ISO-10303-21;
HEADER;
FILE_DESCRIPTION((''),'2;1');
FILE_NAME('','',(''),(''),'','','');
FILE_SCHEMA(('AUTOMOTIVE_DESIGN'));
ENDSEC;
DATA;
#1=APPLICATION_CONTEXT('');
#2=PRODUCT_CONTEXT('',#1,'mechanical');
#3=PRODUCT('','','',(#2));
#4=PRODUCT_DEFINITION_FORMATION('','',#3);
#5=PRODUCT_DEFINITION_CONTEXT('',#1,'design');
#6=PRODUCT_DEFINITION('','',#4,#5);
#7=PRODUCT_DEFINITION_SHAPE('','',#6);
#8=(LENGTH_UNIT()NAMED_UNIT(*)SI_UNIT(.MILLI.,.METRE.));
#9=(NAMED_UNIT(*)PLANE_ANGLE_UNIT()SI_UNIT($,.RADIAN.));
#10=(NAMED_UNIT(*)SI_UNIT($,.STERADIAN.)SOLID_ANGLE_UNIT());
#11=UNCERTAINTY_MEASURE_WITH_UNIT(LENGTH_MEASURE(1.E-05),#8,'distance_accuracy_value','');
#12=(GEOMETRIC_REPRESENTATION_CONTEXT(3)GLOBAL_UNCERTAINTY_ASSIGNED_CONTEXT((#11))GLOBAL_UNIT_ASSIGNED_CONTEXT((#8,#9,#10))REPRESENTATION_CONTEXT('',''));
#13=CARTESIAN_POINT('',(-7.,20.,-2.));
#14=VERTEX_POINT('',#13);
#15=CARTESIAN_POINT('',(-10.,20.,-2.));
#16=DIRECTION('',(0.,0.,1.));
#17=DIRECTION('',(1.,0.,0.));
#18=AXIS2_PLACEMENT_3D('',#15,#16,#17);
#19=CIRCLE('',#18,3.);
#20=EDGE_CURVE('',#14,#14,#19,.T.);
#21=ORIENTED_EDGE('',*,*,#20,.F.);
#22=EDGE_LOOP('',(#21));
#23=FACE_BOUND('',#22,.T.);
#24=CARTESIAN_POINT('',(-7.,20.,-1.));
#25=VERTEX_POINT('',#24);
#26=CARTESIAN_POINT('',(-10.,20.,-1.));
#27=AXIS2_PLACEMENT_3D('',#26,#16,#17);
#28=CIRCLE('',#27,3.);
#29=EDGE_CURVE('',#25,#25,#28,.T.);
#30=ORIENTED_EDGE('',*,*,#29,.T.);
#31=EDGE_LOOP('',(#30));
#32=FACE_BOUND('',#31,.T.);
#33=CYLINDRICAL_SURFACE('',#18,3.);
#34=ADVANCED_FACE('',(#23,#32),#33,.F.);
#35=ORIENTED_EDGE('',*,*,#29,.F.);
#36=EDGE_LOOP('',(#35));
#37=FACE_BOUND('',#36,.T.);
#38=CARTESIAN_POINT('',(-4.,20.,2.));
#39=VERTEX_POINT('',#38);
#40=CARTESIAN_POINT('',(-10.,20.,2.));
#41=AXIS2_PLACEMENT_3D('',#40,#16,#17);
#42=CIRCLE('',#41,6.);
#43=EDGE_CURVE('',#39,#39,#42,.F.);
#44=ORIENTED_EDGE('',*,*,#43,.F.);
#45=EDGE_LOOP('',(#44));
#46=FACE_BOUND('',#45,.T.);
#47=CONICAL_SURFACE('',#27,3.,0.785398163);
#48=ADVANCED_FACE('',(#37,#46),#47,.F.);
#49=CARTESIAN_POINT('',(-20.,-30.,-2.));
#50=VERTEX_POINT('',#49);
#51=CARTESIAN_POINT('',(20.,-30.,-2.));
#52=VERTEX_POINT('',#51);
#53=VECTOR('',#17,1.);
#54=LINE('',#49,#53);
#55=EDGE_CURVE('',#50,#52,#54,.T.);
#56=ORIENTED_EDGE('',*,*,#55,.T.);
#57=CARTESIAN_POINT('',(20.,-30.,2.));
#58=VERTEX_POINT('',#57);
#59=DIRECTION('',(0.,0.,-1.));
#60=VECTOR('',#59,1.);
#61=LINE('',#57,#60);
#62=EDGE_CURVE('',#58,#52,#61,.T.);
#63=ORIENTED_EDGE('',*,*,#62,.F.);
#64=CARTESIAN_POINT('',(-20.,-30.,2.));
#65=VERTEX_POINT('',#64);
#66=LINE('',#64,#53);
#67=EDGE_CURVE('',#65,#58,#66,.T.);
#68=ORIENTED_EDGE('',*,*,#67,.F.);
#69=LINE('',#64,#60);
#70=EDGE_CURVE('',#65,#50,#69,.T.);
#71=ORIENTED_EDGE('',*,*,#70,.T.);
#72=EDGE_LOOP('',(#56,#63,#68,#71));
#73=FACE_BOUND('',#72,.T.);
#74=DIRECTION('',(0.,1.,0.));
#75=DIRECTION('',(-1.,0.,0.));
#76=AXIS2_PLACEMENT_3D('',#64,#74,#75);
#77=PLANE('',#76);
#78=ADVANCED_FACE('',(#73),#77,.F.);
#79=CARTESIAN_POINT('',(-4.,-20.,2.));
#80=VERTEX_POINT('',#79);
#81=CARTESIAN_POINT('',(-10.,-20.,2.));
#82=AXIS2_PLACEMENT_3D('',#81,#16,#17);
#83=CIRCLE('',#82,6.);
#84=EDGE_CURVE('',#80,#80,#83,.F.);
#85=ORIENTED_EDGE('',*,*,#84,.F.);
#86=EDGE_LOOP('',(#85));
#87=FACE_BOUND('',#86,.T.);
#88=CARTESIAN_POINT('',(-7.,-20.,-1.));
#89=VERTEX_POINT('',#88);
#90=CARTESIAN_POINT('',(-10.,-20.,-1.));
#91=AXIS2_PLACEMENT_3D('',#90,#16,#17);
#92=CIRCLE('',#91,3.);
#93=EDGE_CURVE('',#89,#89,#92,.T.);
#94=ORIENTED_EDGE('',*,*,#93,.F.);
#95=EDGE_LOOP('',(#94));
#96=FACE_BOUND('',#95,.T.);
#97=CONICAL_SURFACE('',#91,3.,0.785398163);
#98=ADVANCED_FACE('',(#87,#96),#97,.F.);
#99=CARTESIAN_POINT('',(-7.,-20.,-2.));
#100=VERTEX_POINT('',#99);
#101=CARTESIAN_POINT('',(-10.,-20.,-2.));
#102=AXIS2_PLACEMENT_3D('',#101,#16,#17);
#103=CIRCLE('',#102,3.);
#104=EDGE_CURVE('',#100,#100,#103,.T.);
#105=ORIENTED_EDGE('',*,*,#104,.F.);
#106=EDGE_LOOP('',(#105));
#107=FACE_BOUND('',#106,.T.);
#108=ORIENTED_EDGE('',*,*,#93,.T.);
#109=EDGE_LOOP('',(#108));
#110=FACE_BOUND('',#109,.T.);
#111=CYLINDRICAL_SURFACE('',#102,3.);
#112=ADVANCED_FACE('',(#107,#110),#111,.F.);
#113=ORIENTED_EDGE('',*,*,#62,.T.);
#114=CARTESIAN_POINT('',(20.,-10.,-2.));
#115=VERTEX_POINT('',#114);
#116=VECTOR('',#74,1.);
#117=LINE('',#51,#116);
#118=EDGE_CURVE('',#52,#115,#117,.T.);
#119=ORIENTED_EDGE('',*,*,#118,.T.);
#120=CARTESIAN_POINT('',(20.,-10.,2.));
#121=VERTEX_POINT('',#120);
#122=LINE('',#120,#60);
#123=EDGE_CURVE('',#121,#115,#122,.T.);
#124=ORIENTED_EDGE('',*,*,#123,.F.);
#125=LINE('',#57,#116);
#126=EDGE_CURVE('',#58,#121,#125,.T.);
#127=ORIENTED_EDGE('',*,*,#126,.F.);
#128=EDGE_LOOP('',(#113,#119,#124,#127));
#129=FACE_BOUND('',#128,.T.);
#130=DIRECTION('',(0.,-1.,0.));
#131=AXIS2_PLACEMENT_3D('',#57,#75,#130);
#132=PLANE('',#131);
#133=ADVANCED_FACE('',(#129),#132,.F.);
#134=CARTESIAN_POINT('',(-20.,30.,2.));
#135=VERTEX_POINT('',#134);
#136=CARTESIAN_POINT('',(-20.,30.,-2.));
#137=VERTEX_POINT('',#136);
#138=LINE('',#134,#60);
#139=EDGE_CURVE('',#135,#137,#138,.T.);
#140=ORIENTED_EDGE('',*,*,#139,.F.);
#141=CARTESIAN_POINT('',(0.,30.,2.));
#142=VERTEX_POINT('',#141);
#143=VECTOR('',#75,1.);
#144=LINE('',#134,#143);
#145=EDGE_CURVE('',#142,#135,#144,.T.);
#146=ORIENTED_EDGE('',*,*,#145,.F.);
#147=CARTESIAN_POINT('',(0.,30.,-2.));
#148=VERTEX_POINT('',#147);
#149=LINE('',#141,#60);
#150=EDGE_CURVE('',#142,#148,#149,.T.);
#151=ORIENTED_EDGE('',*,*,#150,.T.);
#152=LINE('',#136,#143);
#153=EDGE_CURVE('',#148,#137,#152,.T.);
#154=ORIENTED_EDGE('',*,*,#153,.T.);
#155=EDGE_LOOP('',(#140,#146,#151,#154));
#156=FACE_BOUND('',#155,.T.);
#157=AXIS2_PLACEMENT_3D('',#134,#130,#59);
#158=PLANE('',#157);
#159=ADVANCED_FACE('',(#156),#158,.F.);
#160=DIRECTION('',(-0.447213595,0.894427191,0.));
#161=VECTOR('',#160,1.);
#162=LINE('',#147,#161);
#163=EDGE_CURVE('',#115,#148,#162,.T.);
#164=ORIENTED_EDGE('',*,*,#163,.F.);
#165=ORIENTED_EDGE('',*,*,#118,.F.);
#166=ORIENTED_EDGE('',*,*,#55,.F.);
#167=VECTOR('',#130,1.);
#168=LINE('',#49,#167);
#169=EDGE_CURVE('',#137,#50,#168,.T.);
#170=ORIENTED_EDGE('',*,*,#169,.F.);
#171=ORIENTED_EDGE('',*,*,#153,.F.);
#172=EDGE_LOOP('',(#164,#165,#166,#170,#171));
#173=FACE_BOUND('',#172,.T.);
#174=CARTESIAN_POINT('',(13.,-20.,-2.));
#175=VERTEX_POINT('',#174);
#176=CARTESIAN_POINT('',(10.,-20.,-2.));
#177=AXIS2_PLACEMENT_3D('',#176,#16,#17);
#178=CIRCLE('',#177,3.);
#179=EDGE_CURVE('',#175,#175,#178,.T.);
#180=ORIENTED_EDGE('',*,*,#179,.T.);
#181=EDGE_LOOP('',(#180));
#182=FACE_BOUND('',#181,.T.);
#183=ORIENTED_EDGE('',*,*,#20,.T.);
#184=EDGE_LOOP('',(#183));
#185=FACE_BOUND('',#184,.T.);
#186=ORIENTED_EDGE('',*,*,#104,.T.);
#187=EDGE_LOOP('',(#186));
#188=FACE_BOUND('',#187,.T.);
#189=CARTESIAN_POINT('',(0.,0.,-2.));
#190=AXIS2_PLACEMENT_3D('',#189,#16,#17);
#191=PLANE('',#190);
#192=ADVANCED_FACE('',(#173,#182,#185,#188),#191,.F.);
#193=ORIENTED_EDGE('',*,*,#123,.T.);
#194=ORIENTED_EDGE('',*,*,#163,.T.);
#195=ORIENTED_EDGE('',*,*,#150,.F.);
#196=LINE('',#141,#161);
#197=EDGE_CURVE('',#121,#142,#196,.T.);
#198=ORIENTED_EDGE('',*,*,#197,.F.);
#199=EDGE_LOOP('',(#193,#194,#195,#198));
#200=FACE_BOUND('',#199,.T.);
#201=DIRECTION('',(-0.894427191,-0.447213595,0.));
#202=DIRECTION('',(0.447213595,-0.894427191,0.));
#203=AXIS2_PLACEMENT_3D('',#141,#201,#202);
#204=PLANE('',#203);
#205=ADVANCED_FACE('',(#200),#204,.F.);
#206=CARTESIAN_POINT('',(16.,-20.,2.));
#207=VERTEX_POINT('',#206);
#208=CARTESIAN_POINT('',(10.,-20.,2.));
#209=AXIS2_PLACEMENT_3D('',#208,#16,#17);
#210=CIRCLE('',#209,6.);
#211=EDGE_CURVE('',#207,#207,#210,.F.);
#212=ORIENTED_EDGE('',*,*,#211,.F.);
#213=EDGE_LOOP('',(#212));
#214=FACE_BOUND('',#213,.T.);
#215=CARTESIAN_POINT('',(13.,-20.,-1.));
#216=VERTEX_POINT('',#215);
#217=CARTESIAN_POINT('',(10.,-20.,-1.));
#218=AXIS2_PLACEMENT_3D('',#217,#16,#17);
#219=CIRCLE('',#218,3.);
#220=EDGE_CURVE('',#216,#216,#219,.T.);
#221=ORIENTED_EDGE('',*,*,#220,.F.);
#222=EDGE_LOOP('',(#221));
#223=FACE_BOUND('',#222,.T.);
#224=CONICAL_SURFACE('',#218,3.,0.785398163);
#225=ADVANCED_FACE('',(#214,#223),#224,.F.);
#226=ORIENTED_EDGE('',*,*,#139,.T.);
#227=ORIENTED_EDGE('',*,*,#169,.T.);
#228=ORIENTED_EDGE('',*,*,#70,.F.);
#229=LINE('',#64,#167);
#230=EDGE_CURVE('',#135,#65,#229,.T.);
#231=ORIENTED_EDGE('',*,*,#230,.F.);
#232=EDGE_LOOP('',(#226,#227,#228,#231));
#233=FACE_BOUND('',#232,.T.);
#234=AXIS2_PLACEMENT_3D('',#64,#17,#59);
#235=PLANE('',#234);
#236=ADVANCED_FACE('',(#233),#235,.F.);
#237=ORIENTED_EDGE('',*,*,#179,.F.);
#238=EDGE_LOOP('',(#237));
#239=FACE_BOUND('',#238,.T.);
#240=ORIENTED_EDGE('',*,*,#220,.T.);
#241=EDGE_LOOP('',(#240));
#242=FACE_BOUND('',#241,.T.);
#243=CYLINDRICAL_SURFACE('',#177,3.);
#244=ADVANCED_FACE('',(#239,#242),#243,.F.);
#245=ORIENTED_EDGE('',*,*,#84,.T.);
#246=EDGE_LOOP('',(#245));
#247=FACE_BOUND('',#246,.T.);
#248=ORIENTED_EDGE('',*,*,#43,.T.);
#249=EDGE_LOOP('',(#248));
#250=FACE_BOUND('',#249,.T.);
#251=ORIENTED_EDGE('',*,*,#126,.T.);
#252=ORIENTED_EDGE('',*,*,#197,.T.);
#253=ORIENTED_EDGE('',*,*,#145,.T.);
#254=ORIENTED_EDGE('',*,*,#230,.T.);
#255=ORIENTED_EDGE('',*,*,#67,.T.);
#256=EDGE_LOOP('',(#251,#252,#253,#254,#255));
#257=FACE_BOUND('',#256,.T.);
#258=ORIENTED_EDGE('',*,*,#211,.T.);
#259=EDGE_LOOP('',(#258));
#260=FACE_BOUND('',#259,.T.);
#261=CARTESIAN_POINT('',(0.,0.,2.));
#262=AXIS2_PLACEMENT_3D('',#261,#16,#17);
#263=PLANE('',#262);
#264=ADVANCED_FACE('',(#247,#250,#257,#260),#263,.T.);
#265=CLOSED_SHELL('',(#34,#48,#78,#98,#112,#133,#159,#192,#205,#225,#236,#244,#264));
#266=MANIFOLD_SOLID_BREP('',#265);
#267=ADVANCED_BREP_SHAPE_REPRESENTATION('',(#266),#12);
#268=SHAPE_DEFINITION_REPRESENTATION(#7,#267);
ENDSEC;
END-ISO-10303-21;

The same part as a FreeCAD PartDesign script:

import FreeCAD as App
import Part
import Sketcher
from FreeCAD import Vector
Q = App.Units.Quantity


def edges_at(feature, points):
    """Names of the edges that pass closest to the given points."""
    edges = feature.Shape.Edges
    near = lambda p: min(range(len(edges)), key=lambda i: edges[i].distToShape(Part.Vertex(*p))[0])
    return sorted({f"Edge{near(p) + 1}" for p in points})


def add_polygon(sketch, points):
    """Adds a closed chain of lines whose ends are joined by coincident constraints."""
    first, n = sketch.GeometryCount, len(points)
    for a, b in zip(points, points[1:] + points[:1]):
        sketch.addGeometry(Part.LineSegment(App.Vector(*a, 0), App.Vector(*b, 0)), False)
    for i in range(n):
        sketch.addConstraint(Sketcher.Constraint("Coincident", first + i, 2, first + (i + 1) % n, 1))

doc = App.newDocument("Part")
params = doc.addObject("Spreadsheet::Sheet", "Params")
for row, (alias, value) in enumerate([
    ("sketch1_width", "40 mm"),
    ("sketch1_height", "60 mm"),
    ("pad1_length", "4 mm"),
    ("sketch2_diameter", "6 mm"),
    ("chamfer_size", "3 mm"),
], start=1):
    params.set(f"A{row}", alias)
    params.set(f"B{row}", "=" + value)
    params.setAlias(f"B{row}", alias)

body = doc.addObject("PartDesign::Body", "Body")

sketch1 = body.newObject("Sketcher::SketchObject", "Sketch")
sketch1.AttachmentSupport = (doc.getObject("XY_Plane"), [""])
sketch1.MapMode = "FlatFace"
add_polygon(sketch1, [(-20, 30), (-20, -30), (20, -30), (20, -10), (0, 30)])
sketch1.addConstraint([
    Sketcher.Constraint("Vertical", 0),
    Sketcher.Constraint("Horizontal", 1),
    Sketcher.Constraint("Vertical", 2),
    Sketcher.Constraint("Horizontal", 4),
    Sketcher.Constraint("Symmetric", 1, 2, 4, 2, -1, 1),
    Sketcher.Constraint("PointOnObject", 3, 2, -2),
    Sketcher.Constraint("Equal", 4, 2),
    Sketcher.Constraint("DistanceX", 1, 1, 1, 2, Q("40 mm")),
    Sketcher.Constraint("DistanceY", 0, 2, 0, 1, Q("60 mm")),
])
sketch1.setExpression("Constraints[12]", "Params.sketch1_width")
sketch1.setExpression("Constraints[13]", "Params.sketch1_height")
pad1 = body.newObject("PartDesign::Pad", "Pad")
pad1.Profile = sketch1
pad1.setExpression("Length", "Params.pad1_length")
pad1.Midplane = True

sketch2 = body.newObject("Sketcher::SketchObject", "Sketch001")
sketch2.AttachmentSupport = (doc.getObject("XY_Plane"), [""])
sketch2.MapMode = "FlatFace"
sketch2.AttachmentOffset = App.Placement(Vector(0, 0, 2), App.Rotation())
sketch2.addGeometry([
    Part.Circle(Vector(-10, 20, 0), Vector(0, 0, 1), 3),
    Part.Circle(Vector(-10, -20, 0), Vector(0, 0, 1), 3),
    Part.Circle(Vector(10, -20, 0), Vector(0, 0, 1), 3),
], False)
sketch2.addConstraint([
    Sketcher.Constraint("Equal", 0, 1),
    Sketcher.Constraint("Equal", 1, 2),
    Sketcher.Constraint("Symmetric", 0, 3, 2, 3, -1, 1),
    Sketcher.Constraint("Symmetric", 1, 3, 2, 3, -2),
    Sketcher.Constraint("Diameter", 0, Q("6 mm")),
    Sketcher.Constraint("DistanceX", 0, 3, -1, 1, Q("10 mm")),
    Sketcher.Constraint("DistanceY", -1, 1, 0, 3, Q("20 mm")),
])
sketch2.setExpression("Constraints[4]", "Params.sketch2_diameter")
pocket1 = body.newObject("PartDesign::Pocket", "Pocket")
pocket1.Profile = sketch2
pocket1.Type = "ThroughAll"
doc.recompute()

chamfer = body.newObject("PartDesign::Chamfer", "Chamfer")
chamfer.Base = (pocket1, edges_at(pocket1, [(-13, 20, 2), (-13, -20, 2), (7, -20, 2)]))
chamfer.setExpression("Size", "Params.chamfer_size")

doc.recompute()
